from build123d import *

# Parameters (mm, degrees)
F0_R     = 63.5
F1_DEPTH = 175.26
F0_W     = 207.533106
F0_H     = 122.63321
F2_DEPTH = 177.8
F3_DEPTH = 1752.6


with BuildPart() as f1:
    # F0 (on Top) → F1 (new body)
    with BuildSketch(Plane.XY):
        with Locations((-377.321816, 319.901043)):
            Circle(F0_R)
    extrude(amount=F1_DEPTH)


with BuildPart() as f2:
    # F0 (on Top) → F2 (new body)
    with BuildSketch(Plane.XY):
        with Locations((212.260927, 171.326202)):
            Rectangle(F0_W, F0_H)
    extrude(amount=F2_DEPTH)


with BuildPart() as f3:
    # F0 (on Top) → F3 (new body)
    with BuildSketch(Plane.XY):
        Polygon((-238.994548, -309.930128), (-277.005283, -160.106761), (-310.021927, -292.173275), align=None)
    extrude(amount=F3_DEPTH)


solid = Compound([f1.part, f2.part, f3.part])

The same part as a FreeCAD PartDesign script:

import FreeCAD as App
import Part
import Sketcher
Q = App.Units.Quantity

doc = App.newDocument("Part")
body = doc.addObject("PartDesign::Body", "Body")

# Sketch on XY plane
sketch1 = doc.addObject("Sketcher::SketchObject", "Sketch")
body.addObject(sketch1)
sketch1.AttachmentSupport = (doc.XY_Plane, [""])
sketch1.MapMode = "FlatFace"
sketch1.addGeometry(Part.Circle(App.Vector(-377, 320, 0), App.Vector(0, 0, 1), 64), False)
sketch1.addConstraint(Sketcher.Constraint("Diameter", 0, Q("5 in")))
sketch1.addConstraint(Sketcher.Constraint("DistanceX", 0, 3, -1, 1, Q("377.321816 mm")))
sketch1.addConstraint(Sketcher.Constraint("DistanceY", -1, 1, 0, 3, Q("319.901043 mm")))
pad1 = doc.addObject("PartDesign::Pad", "Pad")
body.addObject(pad1)
pad1.Profile = sketch1
pad1.Length = Q("6.9 in")
body2 = doc.addObject("PartDesign::Body", "Body001")

# Sketch on XY plane
sketch2 = doc.addObject("Sketcher::SketchObject", "Sketch001")
body2.addObject(sketch2)
sketch2.AttachmentSupport = (doc.getObject("XY_Plane001"), [""])
sketch2.MapMode = "FlatFace"
sketch2.addGeometry(Part.LineSegment(App.Vector(108, 233, 0), App.Vector(108, 110, 0)), False)
sketch2.addGeometry(Part.LineSegment(App.Vector(108, 110, 0), App.Vector(316, 110, 0)), False)
sketch2.addGeometry(Part.LineSegment(App.Vector(316, 110, 0), App.Vector(316, 233, 0)), False)
sketch2.addGeometry(Part.LineSegment(App.Vector(316, 233, 0), App.Vector(108, 233, 0)), False)
sketch2.addConstraint(Sketcher.Constraint("Coincident", 0, 2, 1, 1))
sketch2.addConstraint(Sketcher.Constraint("Coincident", 1, 2, 2, 1))
sketch2.addConstraint(Sketcher.Constraint("Coincident", 2, 2, 3, 1))
sketch2.addConstraint(Sketcher.Constraint("Coincident", 3, 2, 0, 1))
sketch2.addConstraint(Sketcher.Constraint("Vertical", 0))
sketch2.addConstraint(Sketcher.Constraint("Horizontal", 1))
sketch2.addConstraint(Sketcher.Constraint("Vertical", 2))
sketch2.addConstraint(Sketcher.Constraint("Horizontal", 3))
sketch2.addConstraint(Sketcher.Constraint("DistanceY", 0, 2, 0, 1, Q("122.63321 mm")))
sketch2.addConstraint(Sketcher.Constraint("DistanceX", 1, 1, 1, 2, Q("207.533106 mm")))
sketch2.addConstraint(Sketcher.Constraint("DistanceX", -1, 1, 1, 2, Q("316.02748 mm")))
sketch2.addConstraint(Sketcher.Constraint("DistanceY", -1, 1, 0, 2, Q("110.009597 mm")))
pad2 = doc.addObject("PartDesign::Pad", "Pad001")
body2.addObject(pad2)
pad2.Profile = sketch2
pad2.Length = Q("7 in")
body3 = doc.addObject("PartDesign::Body", "Body002")

# Sketch on XY plane
sketch3 = doc.addObject("Sketcher::SketchObject", "Sketch002")
body3.addObject(sketch3)
sketch3.AttachmentSupport = (doc.getObject("XY_Plane002"), [""])
sketch3.MapMode = "FlatFace"
sketch3.addGeometry(Part.LineSegment(App.Vector(-239, -310, 0), App.Vector(-277, -160, 0)), False)
sketch3.addGeometry(Part.LineSegment(App.Vector(-277, -160, 0), App.Vector(-310, -292, 0)), False)
sketch3.addGeometry(Part.LineSegment(App.Vector(-310, -292, 0), App.Vector(-239, -310, 0)), False)
sketch3.addConstraint(Sketcher.Constraint("Coincident", 0, 2, 1, 1))
sketch3.addConstraint(Sketcher.Constraint("Coincident", 1, 2, 2, 1))
sketch3.addConstraint(Sketcher.Constraint("Coincident", 2, 2, 0, 1))
sketch3.addConstraint(Sketcher.Constraint("Perpendicular", 1, 2))
sketch3.addConstraint(Sketcher.Constraint("Distance", 0, Q("154.569911 mm")))
sketch3.addConstraint(Sketcher.Constraint("Distance", 1, Q("136.13105 mm")))
sketch3.addConstraint(Sketcher.Constraint("DistanceY", 0, 2, -1, 1, Q("160.106761 mm")))
sketch3.addConstraint(Sketcher.Constraint("DistanceX", 2, 2, -1, 1, Q("238.994548 mm")))
sketch3.addConstraint(Sketcher.Constraint("DistanceY", 2, 2, -1, 1, Q("309.930128 mm")))
pad3 = doc.addObject("PartDesign::Pad", "Pad002")
body3.addObject(pad3)
pad3.Profile = sketch3
pad3.Length = Q("69 in")

doc.recompute()
